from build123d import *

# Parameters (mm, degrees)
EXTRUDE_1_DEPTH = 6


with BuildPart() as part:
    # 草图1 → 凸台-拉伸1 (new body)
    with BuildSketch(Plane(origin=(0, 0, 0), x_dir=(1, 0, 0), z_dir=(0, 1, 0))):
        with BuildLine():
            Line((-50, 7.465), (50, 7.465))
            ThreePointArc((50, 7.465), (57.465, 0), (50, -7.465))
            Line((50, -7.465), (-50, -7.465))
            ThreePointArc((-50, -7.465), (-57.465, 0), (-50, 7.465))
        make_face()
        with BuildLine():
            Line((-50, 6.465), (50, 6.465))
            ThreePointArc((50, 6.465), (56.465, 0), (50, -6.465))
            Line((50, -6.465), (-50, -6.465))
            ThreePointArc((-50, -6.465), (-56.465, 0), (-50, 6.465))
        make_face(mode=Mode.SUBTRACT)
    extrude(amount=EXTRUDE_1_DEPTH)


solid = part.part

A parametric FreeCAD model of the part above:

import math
import FreeCAD as App
import Part
import Sketcher

V = App.Vector

doc = App.newDocument("Part")
body = doc.addObject("PartDesign::Body", "Body")

# Sketch on XZ plane
sketch1 = body.newObject("Sketcher::SketchObject", "Sketch")
sketch1.AttachmentSupport = (doc.getObject("XZ_Plane"), [""])
sketch1.MapMode = "FlatFace"
sketch1.addGeometry([
    Part.LineSegment(V(50, -7, 0), V(-50, -7, 0)),  # 0
    Part.ArcOfCircle(Part.Circle(V(-50, 0, 0), V(0, 0, 1), 7), math.radians(90), math.radians(270)),  # 1
    Part.LineSegment(V(-50, 7, 0), V(50, 7, 0)),  # 2
    Part.ArcOfCircle(Part.Circle(V(50, 0, 0), V(0, 0, 1), 7), math.radians(-90), math.radians(90)),  # 3
    Part.LineSegment(V(-50, -6, 0), V(50, -6, 0)),  # 4
    Part.ArcOfCircle(Part.Circle(V(50, 0, 0), V(0, 0, 1), 6), math.radians(-90), math.radians(90)),  # 5
    Part.LineSegment(V(50, 6, 0), V(-50, 6, 0)),  # 6
    Part.ArcOfCircle(Part.Circle(V(-50, 0, 0), V(0, 0, 1), 6), math.radians(90), math.radians(270)),  # 7
], False)
sketch1.addConstraint([
    Sketcher.Constraint("Tangent", 0, 2, 1, 2),
    Sketcher.Constraint("Tangent", 1, 1, 2, 1),
    Sketcher.Constraint("Tangent", 2, 2, 3, 2),
    Sketcher.Constraint("Tangent", 3, 1, 0, 1),
    Sketcher.Constraint("Tangent", 4, 2, 5, 1),
    Sketcher.Constraint("Tangent", 5, 2, 6, 1),
    Sketcher.Constraint("Tangent", 6, 2, 7, 1),
    Sketcher.Constraint("Tangent", 7, 2, 4, 1),
    Sketcher.Constraint("Horizontal", 0),
    Sketcher.Constraint("Horizontal", 2),
    Sketcher.Constraint("Horizontal", 4),
    Sketcher.Constraint("Horizontal", 6),
    Sketcher.Constraint("Coincident", 5, 3, 3, 3),
    Sketcher.Constraint("Symmetric", 1, 3, 3, 3, -1, 1),
    Sketcher.Constraint("Vertical", 7, 3, 0, 2),
    Sketcher.Constraint("DistanceX", 0, 2, 0, 1, 100.0),
    Sketcher.Constraint("Radius", 1, 7.465),
    Sketcher.Constraint("Radius", 5, 6.465),
])
pad1 = body.newObject("PartDesign::Pad", "Pad")
pad1.Profile = sketch1
pad1.Length = 6
pad1.Reversed = True

doc.recompute()
